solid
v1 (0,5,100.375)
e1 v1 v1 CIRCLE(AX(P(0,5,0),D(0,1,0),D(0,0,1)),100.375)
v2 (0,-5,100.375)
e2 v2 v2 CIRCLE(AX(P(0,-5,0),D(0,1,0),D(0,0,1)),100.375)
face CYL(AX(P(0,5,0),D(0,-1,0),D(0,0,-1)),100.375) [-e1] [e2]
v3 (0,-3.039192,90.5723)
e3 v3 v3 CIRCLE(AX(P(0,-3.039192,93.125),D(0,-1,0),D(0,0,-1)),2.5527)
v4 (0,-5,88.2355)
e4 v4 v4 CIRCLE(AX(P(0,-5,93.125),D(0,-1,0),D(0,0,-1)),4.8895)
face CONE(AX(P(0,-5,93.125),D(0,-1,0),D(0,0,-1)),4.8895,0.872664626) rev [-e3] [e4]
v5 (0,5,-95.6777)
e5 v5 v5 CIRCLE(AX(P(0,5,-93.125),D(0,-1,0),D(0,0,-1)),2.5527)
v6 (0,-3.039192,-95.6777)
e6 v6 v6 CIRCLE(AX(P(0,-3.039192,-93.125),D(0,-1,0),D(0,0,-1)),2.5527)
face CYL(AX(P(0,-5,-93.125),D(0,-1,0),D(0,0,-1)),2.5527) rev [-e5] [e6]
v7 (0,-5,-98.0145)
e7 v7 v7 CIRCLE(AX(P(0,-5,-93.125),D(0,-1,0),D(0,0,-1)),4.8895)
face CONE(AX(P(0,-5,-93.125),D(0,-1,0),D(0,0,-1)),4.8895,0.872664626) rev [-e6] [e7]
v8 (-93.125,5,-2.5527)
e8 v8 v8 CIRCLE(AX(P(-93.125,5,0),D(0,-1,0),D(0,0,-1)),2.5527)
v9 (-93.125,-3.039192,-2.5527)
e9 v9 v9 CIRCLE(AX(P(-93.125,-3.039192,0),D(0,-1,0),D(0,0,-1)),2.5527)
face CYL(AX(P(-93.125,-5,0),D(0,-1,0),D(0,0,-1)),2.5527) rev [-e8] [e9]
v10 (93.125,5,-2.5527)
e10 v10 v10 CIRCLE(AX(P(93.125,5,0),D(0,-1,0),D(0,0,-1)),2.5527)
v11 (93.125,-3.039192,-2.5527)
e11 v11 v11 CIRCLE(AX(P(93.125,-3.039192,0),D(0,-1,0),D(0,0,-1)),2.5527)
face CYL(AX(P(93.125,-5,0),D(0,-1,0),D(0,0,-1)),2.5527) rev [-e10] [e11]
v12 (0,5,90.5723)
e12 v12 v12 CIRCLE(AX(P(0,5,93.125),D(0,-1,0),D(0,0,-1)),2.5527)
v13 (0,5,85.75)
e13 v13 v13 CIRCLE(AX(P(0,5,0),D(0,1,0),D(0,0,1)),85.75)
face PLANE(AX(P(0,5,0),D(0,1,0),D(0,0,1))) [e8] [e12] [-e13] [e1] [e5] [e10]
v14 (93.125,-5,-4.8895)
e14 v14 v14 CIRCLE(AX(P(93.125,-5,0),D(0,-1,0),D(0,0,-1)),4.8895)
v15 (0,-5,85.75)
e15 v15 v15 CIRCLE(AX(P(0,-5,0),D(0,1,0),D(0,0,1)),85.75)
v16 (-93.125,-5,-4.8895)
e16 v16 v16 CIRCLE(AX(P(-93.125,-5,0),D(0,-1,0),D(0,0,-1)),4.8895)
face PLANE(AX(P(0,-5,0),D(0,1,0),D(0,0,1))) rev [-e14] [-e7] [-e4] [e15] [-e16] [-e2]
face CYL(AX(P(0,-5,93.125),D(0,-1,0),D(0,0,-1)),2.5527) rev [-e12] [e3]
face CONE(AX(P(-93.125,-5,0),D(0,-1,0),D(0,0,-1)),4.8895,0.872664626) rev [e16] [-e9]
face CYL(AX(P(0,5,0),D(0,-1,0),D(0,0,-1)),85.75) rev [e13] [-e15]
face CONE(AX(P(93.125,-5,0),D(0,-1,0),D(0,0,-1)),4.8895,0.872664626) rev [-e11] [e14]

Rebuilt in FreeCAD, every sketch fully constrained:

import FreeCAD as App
import Part
import Sketcher

doc = App.newDocument("Part")
body = doc.addObject("PartDesign::Body", "Body")

# Sketch on XZ plane
sketch1 = body.newObject("Sketcher::SketchObject", "Sketch")
sketch1.AttachmentSupport = (doc.getObject("XZ_Plane"), [""])
sketch1.MapMode = "FlatFace"
sketch1.addGeometry(Part.Circle(App.Vector(0, 0, 0), App.Vector(0, 0, 1), 100), False)
sketch1.addGeometry(Part.Circle(App.Vector(0, 0, 0), App.Vector(0, 0, 1), 86), False)
sketch1.addConstraint(Sketcher.Constraint("Coincident", 0, 3, -1, 1))
sketch1.addConstraint(Sketcher.Constraint("Coincident", 1, 3, -1, 1))
sketch1.addConstraint(Sketcher.Constraint("Diameter", 1, 171.5))
sketch1.addConstraint(Sketcher.Constraint("Diameter", 0, 200.75))
pad1 = body.newObject("PartDesign::Pad", "Pad")
pad1.Profile = sketch1
pad1.Length = 10
pad1.Midplane = True

# Sketch on XZ plane
sketch2 = body.newObject("Sketcher::SketchObject", "Sketch001")
sketch2.AttachmentSupport = (doc.getObject("XZ_Plane"), [""])
sketch2.MapMode = "FlatFace"
sketch2.addGeometry(Part.Circle(App.Vector(-93.1, 0, 0), App.Vector(0, 0, 1), 1.3), False)
sketch2.addConstraint(Sketcher.Constraint("PointOnObject", 0, 3, -1))
sketch2.addConstraint(Sketcher.Constraint("Diameter", 0, 2.54))
sketch2.addConstraint(Sketcher.Constraint("DistanceX", 0, 3, -1, 1, 93.125))
pocket1 = body.newObject("PartDesign::Pocket", "Pocket")
pocket1.Profile = sketch2
pocket1.Length = 286.079434
pocket1.Midplane = True
doc.recompute()

polarpattern = body.newObject("PartDesign::PolarPattern", "PolarPattern")
polarpattern.Originals = [pocket1]
polarpattern.Axis = (doc.getObject("Y_Axis"), [""])
polarpattern.Angle = 360
polarpattern.Occurrences = 4
body.Tip = polarpattern

# Sketch on XZ plane
sketch3 = body.newObject("Sketcher::SketchObject", "Sketch002")
sketch3.AttachmentSupport = (doc.getObject("XZ_Plane"), [""])
sketch3.MapMode = "FlatFace"
sketch3.AttachmentOffset = App.Placement(App.Vector(0, 0, 5), App.Rotation())
sketch3.addGeometry(Part.Circle(App.Vector(93.1, 0, 0), App.Vector(0, 0, 1), 2.6), False)
sketch3.addGeometry(Part.Circle(App.Vector(0, -93.1, 0), App.Vector(0, 0, 1), 2.6), False)
sketch3.addGeometry(Part.Circle(App.Vector(-93.1, 0, 0), App.Vector(0, 0, 1), 2.6), False)
sketch3.addGeometry(Part.Circle(App.Vector(0, 93.1, 0), App.Vector(0, 0, 1), 2.6), False)
sketch3.addConstraint(Sketcher.Constraint("Equal", 0, 1))
sketch3.addConstraint(Sketcher.Constraint("Equal", 1, 2))
sketch3.addConstraint(Sketcher.Constraint("Equal", 2, 3))
sketch3.addConstraint(Sketcher.Constraint("Symmetric", 0, 3, 2, 3, -1, 1))
sketch3.addConstraint(Sketcher.Constraint("Symmetric", 1, 3, 3, 3, -1, 1))
sketch3.addConstraint(Sketcher.Constraint("PointOnObject", 0, 3, -1))
sketch3.addConstraint(Sketcher.Constraint("PointOnObject", 1, 3, -2))
sketch3.addConstraint(Sketcher.Constraint("Diameter", 0, 5.1054))
sketch3.addConstraint(Sketcher.Constraint("DistanceX", 2, 3, 0, 3, 186.25))
sketch3.addConstraint(Sketcher.Constraint("DistanceY", 1, 3, 3, 3, 186.25))
doc.recompute()
hole = body.newObject("PartDesign::Hole", "Hole")
hole.Profile = sketch3
hole.ThreadType = "None"
hole.Diameter = 5.1054
hole.DepthType = "ThroughAll"
hole.HoleCutType = "Countersink"
hole.HoleCutDiameter = 9.779
hole.HoleCutCountersinkAngle = 100

doc.recompute()
